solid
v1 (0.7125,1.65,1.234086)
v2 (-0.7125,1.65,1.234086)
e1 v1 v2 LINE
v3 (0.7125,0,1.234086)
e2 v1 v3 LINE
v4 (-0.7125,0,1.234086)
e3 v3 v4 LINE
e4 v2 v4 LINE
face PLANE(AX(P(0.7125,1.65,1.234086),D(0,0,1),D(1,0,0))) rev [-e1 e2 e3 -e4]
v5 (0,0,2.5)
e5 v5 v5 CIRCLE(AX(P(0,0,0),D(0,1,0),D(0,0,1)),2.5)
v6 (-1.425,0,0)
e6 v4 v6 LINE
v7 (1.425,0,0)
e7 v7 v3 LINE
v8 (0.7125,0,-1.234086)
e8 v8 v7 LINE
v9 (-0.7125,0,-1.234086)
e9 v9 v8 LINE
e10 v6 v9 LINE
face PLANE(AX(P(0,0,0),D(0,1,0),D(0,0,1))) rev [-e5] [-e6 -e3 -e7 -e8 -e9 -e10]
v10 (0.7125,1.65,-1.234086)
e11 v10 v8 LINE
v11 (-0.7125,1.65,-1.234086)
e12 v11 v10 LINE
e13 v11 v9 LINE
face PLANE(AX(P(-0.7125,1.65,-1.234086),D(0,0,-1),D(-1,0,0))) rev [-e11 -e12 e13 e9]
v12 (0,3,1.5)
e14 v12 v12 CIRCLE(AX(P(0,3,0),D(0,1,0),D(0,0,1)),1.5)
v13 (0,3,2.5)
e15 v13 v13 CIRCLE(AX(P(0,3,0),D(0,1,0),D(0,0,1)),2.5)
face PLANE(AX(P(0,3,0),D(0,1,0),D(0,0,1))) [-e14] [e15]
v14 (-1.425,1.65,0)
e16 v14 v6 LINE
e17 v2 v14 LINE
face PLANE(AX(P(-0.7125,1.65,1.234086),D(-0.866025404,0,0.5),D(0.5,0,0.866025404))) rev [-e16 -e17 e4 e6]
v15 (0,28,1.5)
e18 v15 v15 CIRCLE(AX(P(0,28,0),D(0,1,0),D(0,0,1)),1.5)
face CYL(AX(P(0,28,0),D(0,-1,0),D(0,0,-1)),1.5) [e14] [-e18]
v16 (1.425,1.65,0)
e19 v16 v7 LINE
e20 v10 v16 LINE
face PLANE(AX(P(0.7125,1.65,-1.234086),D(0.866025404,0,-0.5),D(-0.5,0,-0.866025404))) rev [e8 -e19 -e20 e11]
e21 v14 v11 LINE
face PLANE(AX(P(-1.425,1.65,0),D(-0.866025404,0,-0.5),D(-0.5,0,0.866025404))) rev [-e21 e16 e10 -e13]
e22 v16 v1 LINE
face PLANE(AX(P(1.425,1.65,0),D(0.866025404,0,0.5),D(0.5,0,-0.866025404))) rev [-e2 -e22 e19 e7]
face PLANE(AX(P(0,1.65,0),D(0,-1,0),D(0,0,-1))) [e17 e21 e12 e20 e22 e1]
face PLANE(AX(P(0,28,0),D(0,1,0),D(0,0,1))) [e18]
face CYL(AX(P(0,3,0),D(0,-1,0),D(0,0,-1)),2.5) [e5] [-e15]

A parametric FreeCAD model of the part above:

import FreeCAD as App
import Part
import Sketcher

V = App.Vector
Q = App.Units.Quantity


def add_polygon(sketch, points):
    """Adds a closed chain of lines whose ends are joined by coincident constraints."""
    first, n = sketch.GeometryCount, len(points)
    for a, b in zip(points, points[1:] + points[:1]):
        sketch.addGeometry(Part.LineSegment(App.Vector(*a, 0), App.Vector(*b, 0)), False)
    for i in range(n):
        sketch.addConstraint(Sketcher.Constraint("Coincident", first + i, 2, first + (i + 1) % n, 1))

doc = App.newDocument("Part")
body = doc.addObject("PartDesign::Body", "Body")

# Sketch on XZ plane
sketch1 = body.newObject("Sketcher::SketchObject", "Sketch")
sketch1.AttachmentSupport = (doc.getObject("XZ_Plane"), [""])
sketch1.MapMode = "FlatFace"
sketch1.addGeometry(Part.Circle(V(0, 0, 0), V(0, 0, 1), 2.5), False)
sketch1.addConstraint([
    Sketcher.Constraint("Coincident", 0, 3, -1, 1),
    Sketcher.Constraint("Diameter", 0, Q("5 mm")),
])
pad1 = body.newObject("PartDesign::Pad", "Pad")
pad1.Profile = sketch1
pad1.Length = 3
pad1.Reversed = True

# Sketch on XZ plane
sketch2 = body.newObject("Sketcher::SketchObject", "Sketch001")
sketch2.AttachmentSupport = (doc.getObject("XZ_Plane"), [""])
sketch2.MapMode = "FlatFace"
sketch2.AttachmentOffset = App.Placement(V(0, 0, -3), App.Rotation())
sketch2.addGeometry(Part.Circle(V(0, 0, 0), V(0, 0, 1), 1.5), False)
sketch2.addConstraint([
    Sketcher.Constraint("Coincident", 0, 3, -1, 1),
    Sketcher.Constraint("Diameter", 0, Q("3 mm")),
])
pad2 = body.newObject("PartDesign::Pad", "Pad001")
pad2.Profile = sketch2
pad2.Length = 25
pad2.Reversed = True

# Sketch on XZ plane
sketch3 = body.newObject("Sketcher::SketchObject", "Sketch002")
sketch3.AttachmentSupport = (doc.getObject("XZ_Plane"), [""])
sketch3.MapMode = "FlatFace"
add_polygon(sketch3, [(1.4, 0), (0.7, 1.2), (-0.7, 1.2), (-1.4, 0), (-0.7, -1.2), (0.7, -1.2)])  # lines 0-5
sketch3.addConstraint([
    Sketcher.Constraint("Horizontal", 1),
    Sketcher.Constraint("Horizontal", 4),
    Sketcher.Constraint("Symmetric", 0, 2, 3, 2, -1, 1),
    Sketcher.Constraint("Symmetric", 2, 2, 5, 2, -1, 1),
    Sketcher.Constraint("PointOnObject", 2, 2, -1),
    Sketcher.Constraint("Parallel", 2, 5),
    Sketcher.Constraint("Vertical", 1, 2, 3, 2),
    Sketcher.Constraint("Angle", 0, Q("120 deg")),
    Sketcher.Constraint("DistanceX", 1, 2, 1, 1, Q("1.425 mm")),
    Sketcher.Constraint("DistanceX", 2, 2, 5, 2, Q("2.85 mm")),
])
pocket1 = body.newObject("PartDesign::Pocket", "Pocket")
pocket1.Profile = sketch3
pocket1.Length = 1.65

doc.recompute()
